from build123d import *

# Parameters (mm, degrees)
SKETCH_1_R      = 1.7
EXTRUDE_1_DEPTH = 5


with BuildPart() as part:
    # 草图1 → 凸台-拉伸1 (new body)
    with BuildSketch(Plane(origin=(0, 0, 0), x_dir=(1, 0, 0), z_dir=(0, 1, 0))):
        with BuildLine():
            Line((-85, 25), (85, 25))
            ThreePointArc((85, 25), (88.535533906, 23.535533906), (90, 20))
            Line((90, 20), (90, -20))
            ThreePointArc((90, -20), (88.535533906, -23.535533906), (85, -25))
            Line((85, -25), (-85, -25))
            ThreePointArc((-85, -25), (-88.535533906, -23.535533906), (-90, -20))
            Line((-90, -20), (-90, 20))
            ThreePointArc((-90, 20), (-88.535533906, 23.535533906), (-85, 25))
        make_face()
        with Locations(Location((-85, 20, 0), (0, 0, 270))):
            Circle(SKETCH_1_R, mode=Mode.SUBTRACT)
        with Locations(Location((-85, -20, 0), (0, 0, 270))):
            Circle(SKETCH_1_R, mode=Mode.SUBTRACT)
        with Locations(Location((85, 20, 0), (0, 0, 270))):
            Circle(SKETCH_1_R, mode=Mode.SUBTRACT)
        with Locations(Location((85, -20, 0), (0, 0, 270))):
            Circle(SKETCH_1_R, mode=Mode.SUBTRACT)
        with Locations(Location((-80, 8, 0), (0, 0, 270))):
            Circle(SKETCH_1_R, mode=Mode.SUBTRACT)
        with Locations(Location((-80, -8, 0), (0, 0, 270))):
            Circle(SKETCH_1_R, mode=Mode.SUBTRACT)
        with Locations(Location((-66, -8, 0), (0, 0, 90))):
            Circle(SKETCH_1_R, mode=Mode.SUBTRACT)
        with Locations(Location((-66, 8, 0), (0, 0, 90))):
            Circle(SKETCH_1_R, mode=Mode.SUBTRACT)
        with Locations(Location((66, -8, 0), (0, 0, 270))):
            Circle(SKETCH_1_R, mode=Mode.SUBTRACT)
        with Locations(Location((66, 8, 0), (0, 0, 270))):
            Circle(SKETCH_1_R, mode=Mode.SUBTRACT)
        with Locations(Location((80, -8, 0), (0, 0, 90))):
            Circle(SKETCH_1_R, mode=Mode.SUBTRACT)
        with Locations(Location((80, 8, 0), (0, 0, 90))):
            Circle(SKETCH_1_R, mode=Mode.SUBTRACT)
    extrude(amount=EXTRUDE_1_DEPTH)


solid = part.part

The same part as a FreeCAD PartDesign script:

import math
import FreeCAD as App
import Part
import Sketcher
Q = App.Units.Quantity

doc = App.newDocument("Part")
body = doc.addObject("PartDesign::Body", "Body")

# Sketch on XZ plane
sketch1 = body.newObject("Sketcher::SketchObject", "Sketch")
sketch1.AttachmentSupport = (doc.getObject("XZ_Plane"), [""])
sketch1.MapMode = "FlatFace"
sketch1.addGeometry([
    Part.LineSegment(App.Vector(85, -25, 0), App.Vector(-85, -25, 0)),  # 0
    Part.ArcOfCircle(Part.Circle(App.Vector(-85, -20, 0), App.Vector(0, 0, 1), 5), math.radians(180), math.radians(270)),  # 1
    Part.LineSegment(App.Vector(-90, -20, 0), App.Vector(-90, 20, 0)),  # 2
    Part.ArcOfCircle(Part.Circle(App.Vector(-85, 20, 0), App.Vector(0, 0, 1), 5), math.radians(90), math.radians(180)),  # 3
    Part.LineSegment(App.Vector(-85, 25, 0), App.Vector(85, 25, 0)),  # 4
    Part.ArcOfCircle(Part.Circle(App.Vector(85, 20, 0), App.Vector(0, 0, 1), 5), math.radians(0), math.radians(90)),  # 5
    Part.LineSegment(App.Vector(90, 20, 0), App.Vector(90, -20, 0)),  # 6
    Part.ArcOfCircle(Part.Circle(App.Vector(85, -20, 0), App.Vector(0, 0, 1), 5), math.radians(-90), math.radians(0)),  # 7
    Part.Circle(App.Vector(85, 20, 0), App.Vector(0, 0, 1), 1.7),  # 8
    Part.Circle(App.Vector(80, 8, 0), App.Vector(0, 0, 1), 1.7),  # 9
    Part.Circle(App.Vector(66, 8, 0), App.Vector(0, 0, 1), 1.7),  # 10
    Part.Circle(App.Vector(-85, 20, 0), App.Vector(0, 0, 1), 1.7),  # 11
    Part.Circle(App.Vector(-66, 8, 0), App.Vector(0, 0, 1), 1.7),  # 12
    Part.Circle(App.Vector(-80, 8, 0), App.Vector(0, 0, 1), 1.7),  # 13
    Part.Circle(App.Vector(80, -8, 0), App.Vector(0, 0, 1), 1.7),  # 14
    Part.Circle(App.Vector(66, -8, 0), App.Vector(0, 0, 1), 1.7),  # 15
    Part.Circle(App.Vector(85, -20, 0), App.Vector(0, 0, 1), 1.7),  # 16
    Part.Circle(App.Vector(-66, -8, 0), App.Vector(0, 0, 1), 1.7),  # 17
    Part.Circle(App.Vector(-80, -8, 0), App.Vector(0, 0, 1), 1.7),  # 18
    Part.Circle(App.Vector(-85, -20, 0), App.Vector(0, 0, 1), 1.7),  # 19
], False)
sketch1.addConstraint([
    Sketcher.Constraint("Tangent", 0, 2, 1, 2),
    Sketcher.Constraint("Tangent", 1, 1, 2, 1),
    Sketcher.Constraint("Tangent", 2, 2, 3, 2),
    Sketcher.Constraint("Tangent", 3, 1, 4, 1),
    Sketcher.Constraint("Tangent", 4, 2, 5, 2),
    Sketcher.Constraint("Tangent", 5, 1, 6, 1),
    Sketcher.Constraint("Tangent", 6, 2, 7, 2),
    Sketcher.Constraint("Tangent", 7, 1, 0, 1),
    Sketcher.Constraint("Horizontal", 0),
    Sketcher.Constraint("Vertical", 2),
    Sketcher.Constraint("Horizontal", 4),
    Sketcher.Constraint("Vertical", 6),
    Sketcher.Constraint("Coincident", 8, 3, 5, 3),
    Sketcher.Constraint("Coincident", 11, 3, 3, 3),
    Sketcher.Constraint("Coincident", 16, 3, 7, 3),
    Sketcher.Constraint("Coincident", 19, 3, 1, 3),
    Sketcher.Constraint("Equal", 1, 3),
    Sketcher.Constraint("Equal", 3, 5),
    Sketcher.Constraint("Equal", 5, 7),
    Sketcher.Constraint("Equal", 8, 9),
    Sketcher.Constraint("Equal", 9, 10),
    Sketcher.Constraint("Equal", 10, 11),
    Sketcher.Constraint("Equal", 11, 12),
    Sketcher.Constraint("Equal", 12, 13),
    Sketcher.Constraint("Equal", 13, 14),
    Sketcher.Constraint("Equal", 14, 15),
    Sketcher.Constraint("Equal", 15, 16),
    Sketcher.Constraint("Equal", 16, 17),
    Sketcher.Constraint("Equal", 17, 18),
    Sketcher.Constraint("Equal", 18, 19),
    Sketcher.Constraint("Symmetric", 1, 3, 5, 3, -1, 1),
    Sketcher.Constraint("Symmetric", 13, 3, 14, 3, -1, 1),
    Sketcher.Constraint("Symmetric", 12, 3, 15, 3, -1, 1),
    Sketcher.Constraint("Symmetric", 10, 3, 17, 3, -1, 1),
    Sketcher.Constraint("Symmetric", 9, 3, 18, 3, -1, 1),
    Sketcher.Constraint("Symmetric", 10, 3, 12, 3, -2),
    Sketcher.Constraint("Symmetric", 9, 3, 13, 3, -2),
    Sketcher.Constraint("Horizontal", 9, 3, 10, 3),
    Sketcher.Constraint("Radius", 1, Q("5 mm")),
    Sketcher.Constraint("Diameter", 8, Q("3.4 mm")),
    Sketcher.Constraint("DistanceX", 0, 2, 0, 1, Q("170 mm")),
    Sketcher.Constraint("DistanceY", 2, 1, 2, 2, Q("40 mm")),
    Sketcher.Constraint("DistanceX", -1, 1, 9, 3, Q("80 mm")),
    Sketcher.Constraint("DistanceY", -1, 1, 9, 3, Q("8 mm")),
    Sketcher.Constraint("DistanceX", -1, 1, 10, 3, Q("66 mm")),
])
pad1 = body.newObject("PartDesign::Pad", "Pad")
pad1.Profile = sketch1
pad1.Length = 5
pad1.Reversed = True

doc.recompute()
